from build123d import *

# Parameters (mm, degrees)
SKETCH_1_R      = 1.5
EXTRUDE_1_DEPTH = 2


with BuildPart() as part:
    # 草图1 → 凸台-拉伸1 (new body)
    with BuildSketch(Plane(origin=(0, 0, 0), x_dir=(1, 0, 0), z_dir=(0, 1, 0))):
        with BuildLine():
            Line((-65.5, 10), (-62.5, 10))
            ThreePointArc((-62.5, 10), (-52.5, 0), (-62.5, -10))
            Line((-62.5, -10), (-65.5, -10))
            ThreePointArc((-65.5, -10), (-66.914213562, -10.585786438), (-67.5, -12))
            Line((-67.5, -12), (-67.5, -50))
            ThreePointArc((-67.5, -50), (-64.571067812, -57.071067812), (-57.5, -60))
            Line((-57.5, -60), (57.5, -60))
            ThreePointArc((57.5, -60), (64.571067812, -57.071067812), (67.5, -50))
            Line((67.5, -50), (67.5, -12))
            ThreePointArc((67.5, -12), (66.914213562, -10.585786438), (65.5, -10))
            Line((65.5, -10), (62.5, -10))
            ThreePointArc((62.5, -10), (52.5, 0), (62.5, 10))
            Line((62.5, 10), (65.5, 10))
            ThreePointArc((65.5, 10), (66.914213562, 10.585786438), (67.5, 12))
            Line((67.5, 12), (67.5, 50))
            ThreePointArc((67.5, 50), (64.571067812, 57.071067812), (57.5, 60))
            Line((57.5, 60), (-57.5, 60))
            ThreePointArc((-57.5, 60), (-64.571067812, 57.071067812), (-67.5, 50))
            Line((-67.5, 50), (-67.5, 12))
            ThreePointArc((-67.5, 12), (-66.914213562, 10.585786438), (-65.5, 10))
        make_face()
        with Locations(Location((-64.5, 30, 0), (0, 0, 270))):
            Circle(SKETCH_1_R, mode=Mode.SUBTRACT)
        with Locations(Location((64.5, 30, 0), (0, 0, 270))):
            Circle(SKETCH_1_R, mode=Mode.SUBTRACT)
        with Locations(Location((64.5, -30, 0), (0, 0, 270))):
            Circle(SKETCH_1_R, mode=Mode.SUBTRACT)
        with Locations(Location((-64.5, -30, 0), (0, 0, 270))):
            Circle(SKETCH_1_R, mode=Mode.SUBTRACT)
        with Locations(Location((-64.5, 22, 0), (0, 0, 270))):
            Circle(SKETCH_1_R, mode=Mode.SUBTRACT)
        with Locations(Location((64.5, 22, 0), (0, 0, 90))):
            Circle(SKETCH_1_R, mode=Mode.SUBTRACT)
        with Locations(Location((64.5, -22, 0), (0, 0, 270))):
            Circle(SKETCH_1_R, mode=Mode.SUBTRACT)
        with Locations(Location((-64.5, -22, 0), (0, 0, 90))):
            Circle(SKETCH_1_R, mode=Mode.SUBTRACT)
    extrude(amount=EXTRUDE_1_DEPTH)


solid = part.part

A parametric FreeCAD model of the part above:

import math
import FreeCAD as App
import Part
import Sketcher
from FreeCAD import Vector
Q = App.Units.Quantity

doc = App.newDocument("Part")
body = doc.addObject("PartDesign::Body", "Body")

# Sketch on XZ plane
sketch1 = body.newObject("Sketcher::SketchObject", "Sketch")
sketch1.AttachmentSupport = (doc.getObject("XZ_Plane"), [""])
sketch1.MapMode = "FlatFace"
sketch1.addGeometry([
    Part.LineSegment(Vector(-65.5, -10, 0), Vector(-62.5, -10, 0)),  # 0
    Part.ArcOfCircle(Part.Circle(Vector(-62.5, 0, 0), Vector(0, 0, 1), 10), math.radians(-90), math.radians(90)),  # 1
    Part.LineSegment(Vector(-62.5, 10, 0), Vector(-65.5, 10, 0)),  # 2
    Part.ArcOfCircle(Part.Circle(Vector(-65.5, 12, 0), Vector(0, 0, 1), 2), math.radians(-180), math.radians(-90)),  # 3
    Part.LineSegment(Vector(-67.5, 12, 0), Vector(-67.5, 50, 0)),  # 4
    Part.ArcOfCircle(Part.Circle(Vector(-57.5, 50, 0), Vector(0, 0, 1), 10), math.radians(90), math.radians(180)),  # 5
    Part.LineSegment(Vector(-57.5, 60, 0), Vector(57.5, 60, 0)),  # 6
    Part.ArcOfCircle(Part.Circle(Vector(57.5, 50, 0), Vector(0, 0, 1), 10), math.radians(0), math.radians(90)),  # 7
    Part.LineSegment(Vector(67.5, 50, 0), Vector(67.5, 12, 0)),  # 8
    Part.ArcOfCircle(Part.Circle(Vector(65.5, 12, 0), Vector(0, 0, 1), 2), math.radians(-90), math.radians(0)),  # 9
    Part.LineSegment(Vector(65.5, 10, 0), Vector(62.5, 10, 0)),  # 10
    Part.ArcOfCircle(Part.Circle(Vector(62.5, 0, 0), Vector(0, 0, 1), 10), math.radians(90), math.radians(270)),  # 11
    Part.LineSegment(Vector(62.5, -10, 0), Vector(65.5, -10, 0)),  # 12
    Part.ArcOfCircle(Part.Circle(Vector(65.5, -12, 0), Vector(0, 0, 1), 2), math.radians(0), math.radians(90)),  # 13
    Part.LineSegment(Vector(67.5, -12, 0), Vector(67.5, -50, 0)),  # 14
    Part.ArcOfCircle(Part.Circle(Vector(57.5, -50, 0), Vector(0, 0, 1), 10), math.radians(-90), math.radians(0)),  # 15
    Part.LineSegment(Vector(57.5, -60, 0), Vector(-57.5, -60, 0)),  # 16
    Part.ArcOfCircle(Part.Circle(Vector(-57.5, -50, 0), Vector(0, 0, 1), 10), math.radians(180), math.radians(270)),  # 17
    Part.LineSegment(Vector(-67.5, -50, 0), Vector(-67.5, -12, 0)),  # 18
    Part.ArcOfCircle(Part.Circle(Vector(-65.5, -12, 0), Vector(0, 0, 1), 2), math.radians(90), math.radians(180)),  # 19
    Part.Circle(Vector(-64.5, 30, 0), Vector(0, 0, 1), 1.5),  # 20
    Part.Circle(Vector(-64.5, 22, 0), Vector(0, 0, 1), 1.5),  # 21
    Part.Circle(Vector(64.5, 30, 0), Vector(0, 0, 1), 1.5),  # 22
    Part.Circle(Vector(64.5, 22, 0), Vector(0, 0, 1), 1.5),  # 23
    Part.Circle(Vector(-64.5, -22, 0), Vector(0, 0, 1), 1.5),  # 24
    Part.Circle(Vector(-64.5, -30, 0), Vector(0, 0, 1), 1.5),  # 25
    Part.Circle(Vector(64.5, -22, 0), Vector(0, 0, 1), 1.5),  # 26
    Part.Circle(Vector(64.5, -30, 0), Vector(0, 0, 1), 1.5),  # 27
], False)
sketch1.addConstraint([
    Sketcher.Constraint("Tangent", 0, 2, 1, 1),
    Sketcher.Constraint("Tangent", 1, 2, 2, 1),
    Sketcher.Constraint("Tangent", 2, 2, 3, 2),
    Sketcher.Constraint("Tangent", 3, 1, 4, 1),
    Sketcher.Constraint("Tangent", 4, 2, 5, 2),
    Sketcher.Constraint("Tangent", 5, 1, 6, 1),
    Sketcher.Constraint("Tangent", 6, 2, 7, 2),
    Sketcher.Constraint("Tangent", 7, 1, 8, 1),
    Sketcher.Constraint("Tangent", 8, 2, 9, 2),
    Sketcher.Constraint("Tangent", 9, 1, 10, 1),
    Sketcher.Constraint("Tangent", 10, 2, 11, 1),
    Sketcher.Constraint("Tangent", 11, 2, 12, 1),
    Sketcher.Constraint("Tangent", 12, 2, 13, 2),
    Sketcher.Constraint("Tangent", 13, 1, 14, 1),
    Sketcher.Constraint("Tangent", 14, 2, 15, 2),
    Sketcher.Constraint("Tangent", 15, 1, 16, 1),
    Sketcher.Constraint("Tangent", 16, 2, 17, 2),
    Sketcher.Constraint("Tangent", 17, 1, 18, 1),
    Sketcher.Constraint("Tangent", 18, 2, 19, 2),
    Sketcher.Constraint("Tangent", 19, 1, 0, 1),
    Sketcher.Constraint("Horizontal", 0),
    Sketcher.Constraint("Horizontal", 2),
    Sketcher.Constraint("Vertical", 4),
    Sketcher.Constraint("Horizontal", 6),
    Sketcher.Constraint("Vertical", 8),
    Sketcher.Constraint("Horizontal", 10),
    Sketcher.Constraint("Horizontal", 12),
    Sketcher.Constraint("Vertical", 14),
    Sketcher.Constraint("Horizontal", 16),
    Sketcher.Constraint("Vertical", 18),
    Sketcher.Constraint("Equal", 1, 5),
    Sketcher.Constraint("Equal", 5, 7),
    Sketcher.Constraint("Equal", 3, 9),
    Sketcher.Constraint("Equal", 7, 11),
    Sketcher.Constraint("Equal", 9, 13),
    Sketcher.Constraint("Equal", 11, 15),
    Sketcher.Constraint("Equal", 15, 17),
    Sketcher.Constraint("Equal", 13, 19),
    Sketcher.Constraint("Equal", 20, 21),
    Sketcher.Constraint("Equal", 21, 22),
    Sketcher.Constraint("Equal", 22, 23),
    Sketcher.Constraint("Equal", 23, 24),
    Sketcher.Constraint("Equal", 24, 25),
    Sketcher.Constraint("Equal", 25, 26),
    Sketcher.Constraint("Equal", 26, 27),
    Sketcher.Constraint("Symmetric", 1, 3, 11, 3, -1, 1),
    Sketcher.Constraint("Symmetric", 5, 3, 15, 3, -1, 1),
    Sketcher.Constraint("Symmetric", 23, 3, 24, 3, -1, 1),
    Sketcher.Constraint("Symmetric", 22, 3, 25, 3, -1, 1),
    Sketcher.Constraint("Symmetric", 21, 3, 26, 3, -1, 1),
    Sketcher.Constraint("Symmetric", 20, 3, 27, 3, -1, 1),
    Sketcher.Constraint("Symmetric", 3, 3, 9, 3, -2),
    Sketcher.Constraint("Symmetric", 20, 3, 22, 3, -2),
    Sketcher.Constraint("Symmetric", 21, 3, 23, 3, -2),
    Sketcher.Constraint("Vertical", 5, 3, 17, 3),
    Sketcher.Constraint("Vertical", 20, 3, 21, 3),
    Sketcher.Constraint("Diameter", 20, Q("3 mm")),
    Sketcher.Constraint("Radius", 1, Q("10 mm")),
    Sketcher.Constraint("Radius", 3, Q("2 mm")),
    Sketcher.Constraint("DistanceX", 0, 1, 0, 2, Q("3 mm")),
    Sketcher.Constraint("DistanceX", 6, 1, 6, 2, Q("115 mm")),
    Sketcher.Constraint("DistanceY", 4, 1, 4, 2, Q("38 mm")),
    Sketcher.Constraint("DistanceY", -1, 1, 20, 3, Q("30 mm")),
    Sketcher.Constraint("DistanceY", -1, 1, 21, 3, Q("22 mm")),
    Sketcher.Constraint("DistanceX", 3, 3, 20, 3, Q("1 mm")),
])
pad1 = body.newObject("PartDesign::Pad", "Pad")
pad1.Profile = sketch1
pad1.Length = 2
pad1.Reversed = True

doc.recompute()
